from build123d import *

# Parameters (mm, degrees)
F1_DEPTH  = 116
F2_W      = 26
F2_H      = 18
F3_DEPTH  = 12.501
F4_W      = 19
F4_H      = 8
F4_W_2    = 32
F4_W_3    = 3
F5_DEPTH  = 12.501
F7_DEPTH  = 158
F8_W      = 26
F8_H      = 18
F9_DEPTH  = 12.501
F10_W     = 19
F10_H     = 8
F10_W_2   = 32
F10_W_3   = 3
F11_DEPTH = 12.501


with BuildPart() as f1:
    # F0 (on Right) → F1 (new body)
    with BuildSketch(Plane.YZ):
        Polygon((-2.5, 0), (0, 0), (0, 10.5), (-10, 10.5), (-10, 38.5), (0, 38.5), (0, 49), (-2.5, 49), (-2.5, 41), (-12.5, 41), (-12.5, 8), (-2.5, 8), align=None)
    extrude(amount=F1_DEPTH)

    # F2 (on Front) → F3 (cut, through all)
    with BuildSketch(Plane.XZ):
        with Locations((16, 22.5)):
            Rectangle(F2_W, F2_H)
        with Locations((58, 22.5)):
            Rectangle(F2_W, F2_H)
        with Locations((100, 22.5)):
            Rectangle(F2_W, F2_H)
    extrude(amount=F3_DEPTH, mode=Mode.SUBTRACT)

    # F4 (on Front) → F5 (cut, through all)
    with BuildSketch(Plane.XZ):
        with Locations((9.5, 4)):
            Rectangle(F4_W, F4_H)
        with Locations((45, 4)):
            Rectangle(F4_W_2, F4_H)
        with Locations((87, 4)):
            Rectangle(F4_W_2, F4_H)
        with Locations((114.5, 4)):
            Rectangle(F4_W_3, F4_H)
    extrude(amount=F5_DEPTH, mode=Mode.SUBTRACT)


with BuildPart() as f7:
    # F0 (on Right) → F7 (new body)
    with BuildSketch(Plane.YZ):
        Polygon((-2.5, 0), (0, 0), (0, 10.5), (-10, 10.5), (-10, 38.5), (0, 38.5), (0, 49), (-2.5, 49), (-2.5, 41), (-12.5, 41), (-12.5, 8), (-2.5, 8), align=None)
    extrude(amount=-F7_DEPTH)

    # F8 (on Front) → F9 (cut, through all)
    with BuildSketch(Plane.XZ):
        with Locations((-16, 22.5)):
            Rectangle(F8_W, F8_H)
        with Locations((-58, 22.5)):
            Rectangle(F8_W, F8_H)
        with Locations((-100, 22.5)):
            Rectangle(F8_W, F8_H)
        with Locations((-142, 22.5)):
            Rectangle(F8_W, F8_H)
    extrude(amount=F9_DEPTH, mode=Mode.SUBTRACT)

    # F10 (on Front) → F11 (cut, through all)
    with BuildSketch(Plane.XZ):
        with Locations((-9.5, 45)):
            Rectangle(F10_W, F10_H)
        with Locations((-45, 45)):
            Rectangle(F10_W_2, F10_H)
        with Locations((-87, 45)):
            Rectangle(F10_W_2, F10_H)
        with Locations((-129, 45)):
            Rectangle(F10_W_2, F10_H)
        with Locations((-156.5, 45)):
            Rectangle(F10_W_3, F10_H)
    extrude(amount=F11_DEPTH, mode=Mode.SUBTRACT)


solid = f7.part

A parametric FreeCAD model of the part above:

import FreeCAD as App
import Part
import Sketcher

V = App.Vector


def add_polygon(sketch, points):
    """Adds a closed chain of lines whose ends are joined by coincident constraints."""
    first, n = sketch.GeometryCount, len(points)
    for a, b in zip(points, points[1:] + points[:1]):
        sketch.addGeometry(Part.LineSegment(App.Vector(*a, 0), App.Vector(*b, 0)), False)
    for i in range(n):
        sketch.addConstraint(Sketcher.Constraint("Coincident", first + i, 2, first + (i + 1) % n, 1))

doc = App.newDocument("Part")
params = doc.addObject("Spreadsheet::Sheet", "Params")
for row, (alias, value) in enumerate([
    ("sketch1_width", "10 mm"),
    ("sketch1_height", "28 mm"),
    ("sketch1_height2", "8 mm"),
    ("sketch1_height3", "33 mm"),
    ("sketch1_width2", "2.5 mm"),
    ("pad1_length", "116 mm"),
    ("sketch2_width", "26 mm"),
    ("sketch2_height", "18 mm"),
    ("sketch3_width", "19 mm"),
    ("sketch3_width2", "32 mm"),
    ("sketch3_width3", "3 mm"),
    ("sketch3_height", "8 mm"),
    ("sketch4_width", "10 mm"),
    ("sketch4_height", "28 mm"),
    ("sketch4_height2", "8 mm"),
    ("sketch4_height3", "33 mm"),
    ("sketch4_width2", "2.5 mm"),
    ("pad2_length", "158 mm"),
    ("sketch5_width", "26 mm"),
    ("sketch5_height", "18 mm"),
    ("sketch6_width", "19 mm"),
    ("sketch6_width2", "32 mm"),
    ("sketch6_width3", "3 mm"),
    ("sketch6_height", "8 mm"),
], start=1):
    params.set(f"A{row}", alias)
    params.set(f"B{row}", "=" + value)
    params.setAlias(f"B{row}", alias)

body = doc.addObject("PartDesign::Body", "Body")

# Sketch on YZ plane
sketch1 = doc.addObject("Sketcher::SketchObject", "Sketch")
body.addObject(sketch1)
sketch1.AttachmentSupport = (doc.YZ_Plane, [""])
sketch1.MapMode = "FlatFace"
add_polygon(sketch1, [(-2.5, 0), (0, 0), (0, 10.5), (-10, 10.5), (-10, 38.5), (0, 38.5), (0, 49), (-2.5, 49), (-2.5, 41), (-12.5, 41), (-12.5, 8), (-2.5, 8)])  # lines 0-11
sketch1.addConstraint(Sketcher.Constraint("Horizontal", 0))
sketch1.addConstraint(Sketcher.Constraint("Vertical", 1))
sketch1.addConstraint(Sketcher.Constraint("Horizontal", 2))
sketch1.addConstraint(Sketcher.Constraint("Vertical", 3))
sketch1.addConstraint(Sketcher.Constraint("Horizontal", 4))
sketch1.addConstraint(Sketcher.Constraint("Vertical", 5))
sketch1.addConstraint(Sketcher.Constraint("Horizontal", 6))
sketch1.addConstraint(Sketcher.Constraint("Vertical", 7))
sketch1.addConstraint(Sketcher.Constraint("Horizontal", 8))
sketch1.addConstraint(Sketcher.Constraint("Vertical", 9))
sketch1.addConstraint(Sketcher.Constraint("Horizontal", 10))
sketch1.addConstraint(Sketcher.Constraint("Vertical", 11))
sketch1.addConstraint(Sketcher.Constraint("Coincident", 0, 2, -1, 1))
sketch1.addConstraint(Sketcher.Constraint("PointOnObject", 4, 2, -2))
sketch1.addConstraint(Sketcher.Constraint("Vertical", 7, 2, 10, 2))
sketch1.addConstraint(Sketcher.Constraint("Equal", 4, 8))
sketch1.addConstraint(Sketcher.Constraint("Equal", 1, 5))
sketch1.addConstraint(Sketcher.Constraint("Equal", 7, 11))
sketch1.addConstraint(Sketcher.Constraint("DistanceX", 2, 2, 2, 1, 10.0))
sketch1.addConstraint(Sketcher.Constraint("DistanceY", 3, 1, 3, 2, 28.0))
sketch1.addConstraint(Sketcher.Constraint("DistanceY", 7, 2, 7, 1, 8.0))
sketch1.addConstraint(Sketcher.Constraint("DistanceY", 9, 2, 9, 1, 33.0))
sketch1.addConstraint(Sketcher.Constraint("DistanceX", 0, 1, 0, 2, 2.5))
sketch1.setExpression("Constraints[30]", "Params.sketch1_width")
sketch1.setExpression("Constraints[31]", "Params.sketch1_height")
sketch1.setExpression("Constraints[32]", "Params.sketch1_height2")
sketch1.setExpression("Constraints[33]", "Params.sketch1_height3")
sketch1.setExpression("Constraints[34]", "Params.sketch1_width2")
pad1 = doc.addObject("PartDesign::Pad", "Pad")
body.addObject(pad1)
pad1.Profile = sketch1
pad1.setExpression("Length", "Params.pad1_length")

# Sketch on XZ plane
sketch2 = doc.addObject("Sketcher::SketchObject", "Sketch001")
body.addObject(sketch2)
sketch2.AttachmentSupport = (doc.XZ_Plane, [""])
sketch2.MapMode = "FlatFace"
add_polygon(sketch2, [(3, 32), (3, 14), (29, 14), (29, 32)])  # lines 0-3
add_polygon(sketch2, [(45, 32), (45, 14), (71, 14), (71, 32)])  # lines 4-7
add_polygon(sketch2, [(87, 32), (87, 14), (113, 14), (113, 32)])  # lines 8-11
sketch2.addConstraint(Sketcher.Constraint("Vertical", 0))
sketch2.addConstraint(Sketcher.Constraint("Horizontal", 1))
sketch2.addConstraint(Sketcher.Constraint("Vertical", 2))
sketch2.addConstraint(Sketcher.Constraint("Horizontal", 3))
sketch2.addConstraint(Sketcher.Constraint("Vertical", 4))
sketch2.addConstraint(Sketcher.Constraint("Horizontal", 5))
sketch2.addConstraint(Sketcher.Constraint("Vertical", 6))
sketch2.addConstraint(Sketcher.Constraint("Horizontal", 7))
sketch2.addConstraint(Sketcher.Constraint("Vertical", 8))
sketch2.addConstraint(Sketcher.Constraint("Horizontal", 9))
sketch2.addConstraint(Sketcher.Constraint("Vertical", 10))
sketch2.addConstraint(Sketcher.Constraint("Horizontal", 11))
sketch2.addConstraint(Sketcher.Constraint("Horizontal", 1, 2, 4, 2))
sketch2.addConstraint(Sketcher.Constraint("Horizontal", 3, 2, 6, 2))
sketch2.addConstraint(Sketcher.Constraint("Horizontal", 5, 2, 8, 2))
sketch2.addConstraint(Sketcher.Constraint("Horizontal", 7, 2, 10, 2))
sketch2.addConstraint(Sketcher.Constraint("Equal", 3, 5))
sketch2.addConstraint(Sketcher.Constraint("Equal", 7, 9))
sketch2.addConstraint(Sketcher.Constraint("DistanceX", 1, 1, 1, 2, 26.0))
sketch2.addConstraint(Sketcher.Constraint("DistanceY", 0, 2, 0, 1, 18.0))
sketch2.addConstraint(Sketcher.Constraint("DistanceX", -1, 1, 0, 2, 3.0))
sketch2.addConstraint(Sketcher.Constraint("DistanceX", -1, 1, 4, 2, 45.0))
sketch2.addConstraint(Sketcher.Constraint("DistanceX", -1, 1, 8, 2, 87.0))
sketch2.addConstraint(Sketcher.Constraint("DistanceY", -1, 1, 0, 2, 13.5))
sketch2.setExpression("Constraints[30]", "Params.sketch2_width")
sketch2.setExpression("Constraints[31]", "Params.sketch2_height")
pocket1 = doc.addObject("PartDesign::Pocket", "Pocket")
body.addObject(pocket1)
pocket1.Profile = sketch2
pocket1.Type = "ThroughAll"
pocket1.Reversed = True

# Sketch on XZ plane
sketch3 = doc.addObject("Sketcher::SketchObject", "Sketch002")
body.addObject(sketch3)
sketch3.AttachmentSupport = (doc.XZ_Plane, [""])
sketch3.MapMode = "FlatFace"
add_polygon(sketch3, [(0, 8), (0, 0), (19, 0), (19, 8)])  # lines 0-3
add_polygon(sketch3, [(29, 8), (29, 0), (61, 0), (61, 8)])  # lines 4-7
add_polygon(sketch3, [(71, 8), (71, 0), (103, 0), (103, 8)])  # lines 8-11
add_polygon(sketch3, [(113, 8), (113, 0), (116, 0), (116, 8)])  # lines 12-15
sketch3.addConstraint(Sketcher.Constraint("Vertical", 0))
sketch3.addConstraint(Sketcher.Constraint("Horizontal", 1))
sketch3.addConstraint(Sketcher.Constraint("Vertical", 2))
sketch3.addConstraint(Sketcher.Constraint("Horizontal", 3))
sketch3.addConstraint(Sketcher.Constraint("Vertical", 4))
sketch3.addConstraint(Sketcher.Constraint("Horizontal", 5))
sketch3.addConstraint(Sketcher.Constraint("Vertical", 6))
sketch3.addConstraint(Sketcher.Constraint("Horizontal", 7))
sketch3.addConstraint(Sketcher.Constraint("Vertical", 8))
sketch3.addConstraint(Sketcher.Constraint("Horizontal", 9))
sketch3.addConstraint(Sketcher.Constraint("Vertical", 10))
sketch3.addConstraint(Sketcher.Constraint("Horizontal", 11))
sketch3.addConstraint(Sketcher.Constraint("Vertical", 12))
sketch3.addConstraint(Sketcher.Constraint("Horizontal", 13))
sketch3.addConstraint(Sketcher.Constraint("Vertical", 14))
sketch3.addConstraint(Sketcher.Constraint("Horizontal", 15))
sketch3.addConstraint(Sketcher.Constraint("Coincident", 0, 2, -1, 1))
sketch3.addConstraint(Sketcher.Constraint("PointOnObject", 4, 2, -1))
sketch3.addConstraint(Sketcher.Constraint("PointOnObject", 8, 2, -1))
sketch3.addConstraint(Sketcher.Constraint("PointOnObject", 12, 2, -1))
sketch3.addConstraint(Sketcher.Constraint("Horizontal", 3, 2, 6, 2))
sketch3.addConstraint(Sketcher.Constraint("Horizontal", 7, 2, 10, 2))
sketch3.addConstraint(Sketcher.Constraint("Horizontal", 11, 2, 14, 2))
sketch3.addConstraint(Sketcher.Constraint("Equal", 7, 9))
sketch3.addConstraint(Sketcher.Constraint("DistanceX", 1, 1, 1, 2, 19.0))
sketch3.addConstraint(Sketcher.Constraint("DistanceX", 5, 1, 5, 2, 32.0))
sketch3.addConstraint(Sketcher.Constraint("DistanceX", 13, 1, 13, 2, 3.0))
sketch3.addConstraint(Sketcher.Constraint("DistanceY", 0, 2, 0, 1, 8.0))
sketch3.addConstraint(Sketcher.Constraint("DistanceX", -1, 1, 4, 2, 29.0))
sketch3.addConstraint(Sketcher.Constraint("DistanceX", -1, 1, 8, 2, 71.0))
sketch3.addConstraint(Sketcher.Constraint("DistanceX", -1, 1, 12, 2, 113.0))
sketch3.setExpression("Constraints[40]", "Params.sketch3_width")
sketch3.setExpression("Constraints[41]", "Params.sketch3_width2")
sketch3.setExpression("Constraints[42]", "Params.sketch3_width3")
sketch3.setExpression("Constraints[43]", "Params.sketch3_height")
pocket2 = doc.addObject("PartDesign::Pocket", "Pocket001")
body.addObject(pocket2)
pocket2.Profile = sketch3
pocket2.Type = "ThroughAll"
pocket2.Reversed = True
body2 = doc.addObject("PartDesign::Body", "Body001")

# Sketch on YZ plane
sketch4 = doc.addObject("Sketcher::SketchObject", "Sketch003")
body2.addObject(sketch4)
sketch4.AttachmentSupport = (doc.getObject("YZ_Plane001"), [""])
sketch4.MapMode = "FlatFace"
add_polygon(sketch4, [(-2.5, 0), (0, 0), (0, 10.5), (-10, 10.5), (-10, 38.5), (0, 38.5), (0, 49), (-2.5, 49), (-2.5, 41), (-12.5, 41), (-12.5, 8), (-2.5, 8)])  # lines 0-11
sketch4.addConstraint(Sketcher.Constraint("Horizontal", 0))
sketch4.addConstraint(Sketcher.Constraint("Vertical", 1))
sketch4.addConstraint(Sketcher.Constraint("Horizontal", 2))
sketch4.addConstraint(Sketcher.Constraint("Vertical", 3))
sketch4.addConstraint(Sketcher.Constraint("Horizontal", 4))
sketch4.addConstraint(Sketcher.Constraint("Vertical", 5))
sketch4.addConstraint(Sketcher.Constraint("Horizontal", 6))
sketch4.addConstraint(Sketcher.Constraint("Vertical", 7))
sketch4.addConstraint(Sketcher.Constraint("Horizontal", 8))
sketch4.addConstraint(Sketcher.Constraint("Vertical", 9))
sketch4.addConstraint(Sketcher.Constraint("Horizontal", 10))
sketch4.addConstraint(Sketcher.Constraint("Vertical", 11))
sketch4.addConstraint(Sketcher.Constraint("Coincident", 0, 2, -1, 1))
sketch4.addConstraint(Sketcher.Constraint("PointOnObject", 4, 2, -2))
sketch4.addConstraint(Sketcher.Constraint("Vertical", 7, 2, 10, 2))
sketch4.addConstraint(Sketcher.Constraint("Equal", 4, 8))
sketch4.addConstraint(Sketcher.Constraint("Equal", 1, 5))
sketch4.addConstraint(Sketcher.Constraint("Equal", 7, 11))
sketch4.addConstraint(Sketcher.Constraint("DistanceX", 2, 2, 2, 1, 10.0))
sketch4.addConstraint(Sketcher.Constraint("DistanceY", 3, 1, 3, 2, 28.0))
sketch4.addConstraint(Sketcher.Constraint("DistanceY", 7, 2, 7, 1, 8.0))
sketch4.addConstraint(Sketcher.Constraint("DistanceY", 9, 2, 9, 1, 33.0))
sketch4.addConstraint(Sketcher.Constraint("DistanceX", 0, 1, 0, 2, 2.5))
sketch4.setExpression("Constraints[30]", "Params.sketch4_width")
sketch4.setExpression("Constraints[31]", "Params.sketch4_height")
sketch4.setExpression("Constraints[32]", "Params.sketch4_height2")
sketch4.setExpression("Constraints[33]", "Params.sketch4_height3")
sketch4.setExpression("Constraints[34]", "Params.sketch4_width2")
pad2 = doc.addObject("PartDesign::Pad", "Pad001")
body2.addObject(pad2)
pad2.Profile = sketch4
pad2.setExpression("Length", "Params.pad2_length")
pad2.Reversed = True

# Sketch on XZ plane
sketch5 = doc.addObject("Sketcher::SketchObject", "Sketch004")
body2.addObject(sketch5)
sketch5.AttachmentSupport = (doc.getObject("XZ_Plane001"), [""])
sketch5.MapMode = "FlatFace"
add_polygon(sketch5, [(-29, 32), (-29, 14), (-3, 14), (-3, 32)])  # lines 0-3
add_polygon(sketch5, [(-71, 32), (-71, 14), (-45, 14), (-45, 32)])  # lines 4-7
add_polygon(sketch5, [(-113, 32), (-113, 14), (-87, 14), (-87, 32)])  # lines 8-11
add_polygon(sketch5, [(-155, 32), (-155, 14), (-129, 14), (-129, 32)])  # lines 12-15
sketch5.addConstraint(Sketcher.Constraint("Vertical", 0))
sketch5.addConstraint(Sketcher.Constraint("Horizontal", 1))
sketch5.addConstraint(Sketcher.Constraint("Vertical", 2))
sketch5.addConstraint(Sketcher.Constraint("Horizontal", 3))
sketch5.addConstraint(Sketcher.Constraint("Vertical", 4))
sketch5.addConstraint(Sketcher.Constraint("Horizontal", 5))
sketch5.addConstraint(Sketcher.Constraint("Vertical", 6))
sketch5.addConstraint(Sketcher.Constraint("Horizontal", 7))
sketch5.addConstraint(Sketcher.Constraint("Vertical", 8))
sketch5.addConstraint(Sketcher.Constraint("Horizontal", 9))
sketch5.addConstraint(Sketcher.Constraint("Vertical", 10))
sketch5.addConstraint(Sketcher.Constraint("Horizontal", 11))
sketch5.addConstraint(Sketcher.Constraint("Vertical", 12))
sketch5.addConstraint(Sketcher.Constraint("Horizontal", 13))
sketch5.addConstraint(Sketcher.Constraint("Vertical", 14))
sketch5.addConstraint(Sketcher.Constraint("Horizontal", 15))
sketch5.addConstraint(Sketcher.Constraint("Horizontal", 1, 2, 4, 2))
sketch5.addConstraint(Sketcher.Constraint("Horizontal", 3, 2, 6, 2))
sketch5.addConstraint(Sketcher.Constraint("Horizontal", 5, 2, 8, 2))
sketch5.addConstraint(Sketcher.Constraint("Horizontal", 7, 2, 10, 2))
sketch5.addConstraint(Sketcher.Constraint("Horizontal", 9, 2, 12, 2))
sketch5.addConstraint(Sketcher.Constraint("Horizontal", 11, 2, 14, 2))
sketch5.addConstraint(Sketcher.Constraint("Equal", 3, 5))
sketch5.addConstraint(Sketcher.Constraint("Equal", 7, 9))
sketch5.addConstraint(Sketcher.Constraint("Equal", 11, 13))
sketch5.addConstraint(Sketcher.Constraint("DistanceX", 1, 1, 1, 2, 26.0))
sketch5.addConstraint(Sketcher.Constraint("DistanceY", 0, 2, 0, 1, 18.0))
sketch5.addConstraint(Sketcher.Constraint("DistanceX", 0, 2, -1, 1, 29.0))
sketch5.addConstraint(Sketcher.Constraint("DistanceX", 4, 2, -1, 1, 71.0))
sketch5.addConstraint(Sketcher.Constraint("DistanceX", 8, 2, -1, 1, 113.0))
sketch5.addConstraint(Sketcher.Constraint("DistanceX", 12, 2, -1, 1, 155.0))
sketch5.addConstraint(Sketcher.Constraint("DistanceY", -1, 1, 0, 2, 13.5))
sketch5.setExpression("Constraints[41]", "Params.sketch5_width")
sketch5.setExpression("Constraints[42]", "Params.sketch5_height")
pocket3 = doc.addObject("PartDesign::Pocket", "Pocket002")
body2.addObject(pocket3)
pocket3.Profile = sketch5
pocket3.Type = "ThroughAll"
pocket3.Reversed = True

# Sketch on XZ plane
sketch6 = doc.addObject("Sketcher::SketchObject", "Sketch005")
body2.addObject(sketch6)
sketch6.AttachmentSupport = (doc.getObject("XZ_Plane001"), [""])
sketch6.MapMode = "FlatFace"
add_polygon(sketch6, [(-19, 49), (-19, 41), (0, 41), (0, 49)])  # lines 0-3
add_polygon(sketch6, [(-61, 49), (-61, 41), (-29, 41), (-29, 49)])  # lines 4-7
add_polygon(sketch6, [(-103, 49), (-103, 41), (-71, 41), (-71, 49)])  # lines 8-11
add_polygon(sketch6, [(-145, 49), (-145, 41), (-113, 41), (-113, 49)])  # lines 12-15
add_polygon(sketch6, [(-158, 49), (-158, 41), (-155, 41), (-155, 49)])  # lines 16-19
sketch6.addConstraint(Sketcher.Constraint("Vertical", 0))
sketch6.addConstraint(Sketcher.Constraint("Horizontal", 1))
sketch6.addConstraint(Sketcher.Constraint("Vertical", 2))
sketch6.addConstraint(Sketcher.Constraint("Horizontal", 3))
sketch6.addConstraint(Sketcher.Constraint("Vertical", 4))
sketch6.addConstraint(Sketcher.Constraint("Horizontal", 5))
sketch6.addConstraint(Sketcher.Constraint("Vertical", 6))
sketch6.addConstraint(Sketcher.Constraint("Horizontal", 7))
sketch6.addConstraint(Sketcher.Constraint("Vertical", 8))
sketch6.addConstraint(Sketcher.Constraint("Horizontal", 9))
sketch6.addConstraint(Sketcher.Constraint("Vertical", 10))
sketch6.addConstraint(Sketcher.Constraint("Horizontal", 11))
sketch6.addConstraint(Sketcher.Constraint("Vertical", 12))
sketch6.addConstraint(Sketcher.Constraint("Horizontal", 13))
sketch6.addConstraint(Sketcher.Constraint("Vertical", 14))
sketch6.addConstraint(Sketcher.Constraint("Horizontal", 15))
sketch6.addConstraint(Sketcher.Constraint("Vertical", 16))
sketch6.addConstraint(Sketcher.Constraint("Horizontal", 17))
sketch6.addConstraint(Sketcher.Constraint("Vertical", 18))
sketch6.addConstraint(Sketcher.Constraint("Horizontal", 19))
sketch6.addConstraint(Sketcher.Constraint("PointOnObject", 1, 2, -2))
sketch6.addConstraint(Sketcher.Constraint("Horizontal", 1, 2, 4, 2))
sketch6.addConstraint(Sketcher.Constraint("Horizontal", 3, 2, 6, 2))
sketch6.addConstraint(Sketcher.Constraint("Horizontal", 5, 2, 8, 2))
sketch6.addConstraint(Sketcher.Constraint("Horizontal", 7, 2, 10, 2))
sketch6.addConstraint(Sketcher.Constraint("Horizontal", 9, 2, 12, 2))
sketch6.addConstraint(Sketcher.Constraint("Horizontal", 11, 2, 14, 2))
sketch6.addConstraint(Sketcher.Constraint("Horizontal", 13, 2, 16, 2))
sketch6.addConstraint(Sketcher.Constraint("Horizontal", 15, 2, 18, 2))
sketch6.addConstraint(Sketcher.Constraint("Equal", 7, 9))
sketch6.addConstraint(Sketcher.Constraint("Equal", 11, 13))
sketch6.addConstraint(Sketcher.Constraint("DistanceX", 1, 1, 1, 2, 19.0))
sketch6.addConstraint(Sketcher.Constraint("DistanceX", 5, 1, 5, 2, 32.0))
sketch6.addConstraint(Sketcher.Constraint("DistanceX", 17, 1, 17, 2, 3.0))
sketch6.addConstraint(Sketcher.Constraint("DistanceY", 0, 2, 0, 1, 8.0))
sketch6.addConstraint(Sketcher.Constraint("DistanceY", -1, 1, 0, 2, 41.0))
sketch6.addConstraint(Sketcher.Constraint("DistanceX", 4, 2, -1, 1, 61.0))
sketch6.addConstraint(Sketcher.Constraint("DistanceX", 8, 2, -1, 1, 103.0))
sketch6.addConstraint(Sketcher.Constraint("DistanceX", 12, 2, -1, 1, 145.0))
sketch6.addConstraint(Sketcher.Constraint("DistanceX", 16, 2, -1, 1, 158.0))
sketch6.setExpression("Constraints[51]", "Params.sketch6_width")
sketch6.setExpression("Constraints[52]", "Params.sketch6_width2")
sketch6.setExpression("Constraints[53]", "Params.sketch6_width3")
sketch6.setExpression("Constraints[54]", "Params.sketch6_height")
pocket4 = doc.addObject("PartDesign::Pocket", "Pocket003")
body2.addObject(pocket4)
pocket4.Profile = sketch6
pocket4.Type = "ThroughAll"
pocket4.Reversed = True
body.Visibility = False

doc.recompute()
